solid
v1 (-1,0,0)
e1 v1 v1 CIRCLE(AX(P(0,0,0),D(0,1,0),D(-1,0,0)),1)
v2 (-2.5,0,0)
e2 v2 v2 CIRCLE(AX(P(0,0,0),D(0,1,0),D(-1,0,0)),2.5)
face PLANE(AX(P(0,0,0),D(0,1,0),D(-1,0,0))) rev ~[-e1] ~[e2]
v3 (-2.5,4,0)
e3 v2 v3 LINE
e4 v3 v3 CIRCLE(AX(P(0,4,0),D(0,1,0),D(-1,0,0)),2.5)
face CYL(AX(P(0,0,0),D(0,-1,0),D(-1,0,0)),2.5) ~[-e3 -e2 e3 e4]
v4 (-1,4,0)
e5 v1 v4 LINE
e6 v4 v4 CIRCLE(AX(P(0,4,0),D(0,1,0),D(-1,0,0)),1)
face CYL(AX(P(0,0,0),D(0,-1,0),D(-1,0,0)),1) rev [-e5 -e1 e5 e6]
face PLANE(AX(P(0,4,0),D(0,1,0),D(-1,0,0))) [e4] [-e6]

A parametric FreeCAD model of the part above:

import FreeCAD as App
import Part
import Sketcher

V = App.Vector

doc = App.newDocument("Part")
body = doc.addObject("PartDesign::Body", "Body")

# Sketch on XZ plane
sketch1 = body.newObject("Sketcher::SketchObject", "Sketch")
sketch1.AttachmentSupport = (doc.getObject("XZ_Plane"), [""])
sketch1.MapMode = "FlatFace"
sketch1.addGeometry([
    Part.Circle(V(0, 0, 0), V(0, 0, 1), 2.5),
    Part.Circle(V(0, 0, 0), V(0, 0, 1), 1),
], False)
sketch1.addConstraint([
    Sketcher.Constraint("Coincident", 0, 3, -1, 1),
    Sketcher.Constraint("Coincident", 1, 3, -1, 1),
    Sketcher.Constraint("Diameter", 0, 5.0),
    Sketcher.Constraint("Diameter", 1, 2.0),
])
pad1 = body.newObject("PartDesign::Pad", "Pad")
pad1.Profile = sketch1
pad1.Length = 4
pad1.Reversed = True

doc.recompute()
